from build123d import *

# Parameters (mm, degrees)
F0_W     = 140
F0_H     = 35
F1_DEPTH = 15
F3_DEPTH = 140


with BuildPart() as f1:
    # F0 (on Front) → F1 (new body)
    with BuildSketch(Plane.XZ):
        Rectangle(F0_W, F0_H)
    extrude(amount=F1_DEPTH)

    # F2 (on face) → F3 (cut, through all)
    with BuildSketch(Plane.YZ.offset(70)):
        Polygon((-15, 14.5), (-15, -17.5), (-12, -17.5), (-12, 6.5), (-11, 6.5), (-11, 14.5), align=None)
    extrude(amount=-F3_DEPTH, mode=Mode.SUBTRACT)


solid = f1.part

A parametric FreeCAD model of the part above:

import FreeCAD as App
import Part
import Sketcher


def add_polygon(sketch, points):
    """Adds a closed chain of lines whose ends are joined by coincident constraints."""
    first, n = sketch.GeometryCount, len(points)
    for a, b in zip(points, points[1:] + points[:1]):
        sketch.addGeometry(Part.LineSegment(App.Vector(*a, 0), App.Vector(*b, 0)), False)
    for i in range(n):
        sketch.addConstraint(Sketcher.Constraint("Coincident", first + i, 2, first + (i + 1) % n, 1))

doc = App.newDocument("Part")
body = doc.addObject("PartDesign::Body", "Body")

sketch1 = doc.addObject("Sketcher::SketchObject", "Sketch")
body.addObject(sketch1)
sketch1.AttachmentSupport = (doc.XZ_Plane, [""])
sketch1.MapMode = "FlatFace"
add_polygon(sketch1, [(-70, 17.5), (-70, -17.5), (70, -17.5), (70, 17.5)])
sketch1.addConstraint([
    Sketcher.Constraint("Vertical", 0),
    Sketcher.Constraint("Horizontal", 1),
    Sketcher.Constraint("Vertical", 2),
    Sketcher.Constraint("Horizontal", 3),
    Sketcher.Constraint("Symmetric", 0, 2, 2, 2, -1, 1),
    Sketcher.Constraint("DistanceX", 1, 1, 1, 2, 140.0),
    Sketcher.Constraint("DistanceY", 0, 2, 0, 1, 35.0),
])
pad1 = doc.addObject("PartDesign::Pad", "Pad")
body.addObject(pad1)
pad1.Profile = sketch1
pad1.Length = 15

sketch2 = doc.addObject("Sketcher::SketchObject", "Sketch001")
body.addObject(sketch2)
sketch2.AttachmentSupport = (doc.YZ_Plane, [""])
sketch2.MapMode = "FlatFace"
sketch2.AttachmentOffset = App.Placement(App.Vector(0, 0, 70), App.Rotation())
add_polygon(sketch2, [(-15, 14.5), (-15, -17.5), (-12, -17.5), (-12, 6.5), (-11, 6.5), (-11, 14.5)])
sketch2.addConstraint([
    Sketcher.Constraint("Vertical", 0),
    Sketcher.Constraint("Horizontal", 1),
    Sketcher.Constraint("Vertical", 2),
    Sketcher.Constraint("Horizontal", 3),
    Sketcher.Constraint("Vertical", 4),
    Sketcher.Constraint("Horizontal", 5),
    Sketcher.Constraint("DistanceX", 1, 1, 1, 2, 3.0),
    Sketcher.Constraint("DistanceX", 3, 1, 3, 2, 1.0),
    Sketcher.Constraint("DistanceY", 0, 2, 0, 1, 32.0),
    Sketcher.Constraint("DistanceY", 2, 1, 2, 2, 24.0),
    Sketcher.Constraint("DistanceX", 0, 2, -1, 1, 15.0),
    Sketcher.Constraint("DistanceY", 0, 2, -1, 1, 17.5),
])
pocket1 = doc.addObject("PartDesign::Pocket", "Pocket")
body.addObject(pocket1)
pocket1.Profile = sketch2
pocket1.Type = "ThroughAll"

doc.recompute()
